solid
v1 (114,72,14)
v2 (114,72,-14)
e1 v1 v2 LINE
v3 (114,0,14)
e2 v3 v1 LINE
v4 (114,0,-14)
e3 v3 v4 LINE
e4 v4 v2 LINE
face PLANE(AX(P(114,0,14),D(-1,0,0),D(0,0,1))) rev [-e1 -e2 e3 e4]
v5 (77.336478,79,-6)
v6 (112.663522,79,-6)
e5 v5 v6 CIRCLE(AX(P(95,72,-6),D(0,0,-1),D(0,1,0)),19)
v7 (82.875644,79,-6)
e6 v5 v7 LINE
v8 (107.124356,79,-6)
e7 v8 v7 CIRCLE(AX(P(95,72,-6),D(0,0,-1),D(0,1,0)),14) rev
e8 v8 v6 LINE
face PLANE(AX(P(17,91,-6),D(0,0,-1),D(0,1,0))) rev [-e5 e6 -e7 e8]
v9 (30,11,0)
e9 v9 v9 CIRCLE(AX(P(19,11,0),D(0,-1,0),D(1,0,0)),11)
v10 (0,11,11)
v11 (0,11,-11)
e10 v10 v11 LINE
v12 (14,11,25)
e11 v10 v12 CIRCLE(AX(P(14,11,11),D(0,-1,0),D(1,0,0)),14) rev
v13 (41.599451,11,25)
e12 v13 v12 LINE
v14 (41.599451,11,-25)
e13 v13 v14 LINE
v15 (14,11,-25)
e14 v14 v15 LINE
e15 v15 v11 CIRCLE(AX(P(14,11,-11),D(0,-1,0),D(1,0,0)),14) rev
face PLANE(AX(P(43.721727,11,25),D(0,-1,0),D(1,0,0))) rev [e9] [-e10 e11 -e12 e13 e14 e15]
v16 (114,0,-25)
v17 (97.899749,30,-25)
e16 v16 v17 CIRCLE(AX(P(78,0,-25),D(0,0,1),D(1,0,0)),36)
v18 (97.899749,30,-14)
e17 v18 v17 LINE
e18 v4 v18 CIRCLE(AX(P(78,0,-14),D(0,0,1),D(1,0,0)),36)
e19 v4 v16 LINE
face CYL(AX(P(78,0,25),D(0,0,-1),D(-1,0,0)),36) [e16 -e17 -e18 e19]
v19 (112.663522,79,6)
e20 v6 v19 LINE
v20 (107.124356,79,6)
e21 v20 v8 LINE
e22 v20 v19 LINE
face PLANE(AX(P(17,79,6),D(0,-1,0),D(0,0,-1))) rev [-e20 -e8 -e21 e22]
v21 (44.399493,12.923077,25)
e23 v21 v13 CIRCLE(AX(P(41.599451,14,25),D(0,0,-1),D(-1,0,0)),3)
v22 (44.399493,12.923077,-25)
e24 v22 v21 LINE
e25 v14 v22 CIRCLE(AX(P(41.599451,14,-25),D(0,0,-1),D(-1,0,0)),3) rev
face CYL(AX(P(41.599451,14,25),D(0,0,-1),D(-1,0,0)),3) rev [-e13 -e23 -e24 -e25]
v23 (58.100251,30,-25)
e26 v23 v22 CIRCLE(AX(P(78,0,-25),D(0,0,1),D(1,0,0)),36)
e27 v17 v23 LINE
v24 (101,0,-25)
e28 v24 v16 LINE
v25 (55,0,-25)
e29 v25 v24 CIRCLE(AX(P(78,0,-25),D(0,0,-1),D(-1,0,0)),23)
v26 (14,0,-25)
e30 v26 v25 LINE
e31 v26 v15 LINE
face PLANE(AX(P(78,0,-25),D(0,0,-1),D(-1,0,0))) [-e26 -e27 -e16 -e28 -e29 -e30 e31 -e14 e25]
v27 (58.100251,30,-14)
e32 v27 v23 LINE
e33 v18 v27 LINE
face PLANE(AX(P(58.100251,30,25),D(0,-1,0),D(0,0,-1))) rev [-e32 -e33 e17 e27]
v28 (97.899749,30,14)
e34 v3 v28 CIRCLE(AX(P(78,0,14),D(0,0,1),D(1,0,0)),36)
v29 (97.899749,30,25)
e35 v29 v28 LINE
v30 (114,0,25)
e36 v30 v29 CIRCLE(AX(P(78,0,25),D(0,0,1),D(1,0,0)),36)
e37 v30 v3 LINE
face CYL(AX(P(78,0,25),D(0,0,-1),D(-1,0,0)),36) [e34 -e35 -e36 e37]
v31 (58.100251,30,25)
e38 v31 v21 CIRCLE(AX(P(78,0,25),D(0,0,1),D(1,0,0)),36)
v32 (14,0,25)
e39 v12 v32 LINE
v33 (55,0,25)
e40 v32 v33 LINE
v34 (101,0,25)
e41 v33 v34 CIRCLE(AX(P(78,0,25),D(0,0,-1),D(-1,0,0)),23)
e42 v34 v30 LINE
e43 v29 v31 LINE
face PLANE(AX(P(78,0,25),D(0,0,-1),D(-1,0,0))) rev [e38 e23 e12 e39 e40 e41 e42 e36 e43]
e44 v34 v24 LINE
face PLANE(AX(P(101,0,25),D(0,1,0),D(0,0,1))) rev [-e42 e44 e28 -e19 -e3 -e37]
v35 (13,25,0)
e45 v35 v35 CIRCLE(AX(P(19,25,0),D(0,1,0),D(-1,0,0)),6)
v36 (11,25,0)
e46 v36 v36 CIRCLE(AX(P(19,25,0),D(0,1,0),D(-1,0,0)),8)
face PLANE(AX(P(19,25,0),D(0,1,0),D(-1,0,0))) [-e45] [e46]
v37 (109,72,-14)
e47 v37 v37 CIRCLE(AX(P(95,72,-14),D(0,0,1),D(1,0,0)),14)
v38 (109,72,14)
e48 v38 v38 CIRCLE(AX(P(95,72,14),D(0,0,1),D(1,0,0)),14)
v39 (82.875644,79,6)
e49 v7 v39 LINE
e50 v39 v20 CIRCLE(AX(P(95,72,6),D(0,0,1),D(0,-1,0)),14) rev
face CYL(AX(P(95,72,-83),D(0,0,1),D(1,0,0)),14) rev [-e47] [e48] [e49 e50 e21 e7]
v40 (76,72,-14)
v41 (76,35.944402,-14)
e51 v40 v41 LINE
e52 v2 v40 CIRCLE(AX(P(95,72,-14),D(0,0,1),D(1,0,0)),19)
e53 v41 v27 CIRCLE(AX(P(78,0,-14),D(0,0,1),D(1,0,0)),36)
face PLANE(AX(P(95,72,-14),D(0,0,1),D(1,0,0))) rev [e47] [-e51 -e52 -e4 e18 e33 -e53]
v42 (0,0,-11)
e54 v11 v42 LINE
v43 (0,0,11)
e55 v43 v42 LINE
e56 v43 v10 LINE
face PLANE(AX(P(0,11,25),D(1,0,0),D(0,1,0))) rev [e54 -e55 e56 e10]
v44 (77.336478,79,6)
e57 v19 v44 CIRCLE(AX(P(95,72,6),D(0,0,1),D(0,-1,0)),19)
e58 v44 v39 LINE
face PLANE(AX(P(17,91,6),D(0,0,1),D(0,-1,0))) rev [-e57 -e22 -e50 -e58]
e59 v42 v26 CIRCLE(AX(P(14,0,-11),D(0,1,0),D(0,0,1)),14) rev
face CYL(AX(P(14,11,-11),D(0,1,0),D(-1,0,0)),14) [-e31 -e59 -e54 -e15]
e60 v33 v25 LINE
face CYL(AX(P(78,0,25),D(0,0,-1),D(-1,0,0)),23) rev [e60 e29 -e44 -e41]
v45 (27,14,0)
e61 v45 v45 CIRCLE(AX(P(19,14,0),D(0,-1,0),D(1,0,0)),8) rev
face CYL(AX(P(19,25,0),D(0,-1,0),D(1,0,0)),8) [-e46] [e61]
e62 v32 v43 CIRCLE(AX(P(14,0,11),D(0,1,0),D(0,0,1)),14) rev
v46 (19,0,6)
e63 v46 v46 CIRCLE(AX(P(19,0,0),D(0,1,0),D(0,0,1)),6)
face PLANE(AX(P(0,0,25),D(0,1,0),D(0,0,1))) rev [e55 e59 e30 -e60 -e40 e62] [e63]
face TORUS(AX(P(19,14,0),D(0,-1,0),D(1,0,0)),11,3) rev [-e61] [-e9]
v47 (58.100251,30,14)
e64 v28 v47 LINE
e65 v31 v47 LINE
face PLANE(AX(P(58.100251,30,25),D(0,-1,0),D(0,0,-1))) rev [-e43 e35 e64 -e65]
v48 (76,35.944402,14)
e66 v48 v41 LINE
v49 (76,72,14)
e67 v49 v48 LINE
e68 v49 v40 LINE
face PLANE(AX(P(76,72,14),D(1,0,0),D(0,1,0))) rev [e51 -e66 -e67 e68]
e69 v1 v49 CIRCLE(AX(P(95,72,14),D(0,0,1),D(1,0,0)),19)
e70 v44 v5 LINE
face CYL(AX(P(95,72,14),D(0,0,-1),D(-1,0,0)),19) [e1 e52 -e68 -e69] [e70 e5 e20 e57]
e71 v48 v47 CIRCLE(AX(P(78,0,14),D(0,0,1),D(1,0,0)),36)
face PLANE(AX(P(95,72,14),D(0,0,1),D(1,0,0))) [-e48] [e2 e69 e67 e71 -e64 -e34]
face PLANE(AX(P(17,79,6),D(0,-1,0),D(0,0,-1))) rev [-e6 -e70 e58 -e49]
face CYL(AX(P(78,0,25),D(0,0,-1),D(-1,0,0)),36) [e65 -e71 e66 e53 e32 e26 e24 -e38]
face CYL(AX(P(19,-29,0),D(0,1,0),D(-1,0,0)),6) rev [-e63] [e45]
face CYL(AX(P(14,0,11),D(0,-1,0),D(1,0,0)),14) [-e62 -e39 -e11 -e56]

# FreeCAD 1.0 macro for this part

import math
import FreeCAD as App
import Part
import Sketcher
Q = App.Units.Quantity


def edges_at(feature, points):
    """Names of the edges that pass closest to the given points."""
    edges = feature.Shape.Edges
    near = lambda p: min(range(len(edges)), key=lambda i: edges[i].distToShape(Part.Vertex(*p))[0])
    return sorted({f"Edge{near(p) + 1}" for p in points})


def add_polygon(sketch, points):
    """Adds a closed chain of lines whose ends are joined by coincident constraints."""
    first, n = sketch.GeometryCount, len(points)
    for a, b in zip(points, points[1:] + points[:1]):
        sketch.addGeometry(Part.LineSegment(App.Vector(*a, 0), App.Vector(*b, 0)), False)
    for i in range(n):
        sketch.addConstraint(Sketcher.Constraint("Coincident", first + i, 2, first + (i + 1) % n, 1))

doc = App.newDocument("Part")
body = doc.addObject("PartDesign::Body", "Body")

sketch1 = body.newObject("Sketcher::SketchObject", "Sketch")
sketch1.AttachmentSupport = (doc.getObject("XY_Plane"), [""])
sketch1.MapMode = "FlatFace"
sketch1.addGeometry([
    Part.LineSegment(App.Vector(0, 0, 0), App.Vector(55, 0, 0)),
    Part.ArcOfCircle(Part.Circle(App.Vector(78, 0, 0), App.Vector(0, 0, 1), 23), math.radians(0), math.radians(180)),
    Part.LineSegment(App.Vector(101, 0, 0), App.Vector(114, 0, 0)),
    Part.ArcOfCircle(Part.Circle(App.Vector(78, 0, 0), App.Vector(0, 0, 1), 36), math.radians(0), math.radians(56)),
    Part.LineSegment(App.Vector(98, 30, 0), App.Vector(58, 30, 0)),
    Part.ArcOfCircle(Part.Circle(App.Vector(78, 0, 0), App.Vector(0, 0, 1), 36), math.radians(124), math.radians(162)),
    Part.LineSegment(App.Vector(44, 11, 0), App.Vector(0, 11, 0)),
    Part.LineSegment(App.Vector(0, 11, 0), App.Vector(0, 0, 0)),
], False)
sketch1.addConstraint([
    Sketcher.Constraint("Coincident", 0, 2, 1, 2),
    Sketcher.Constraint("Coincident", 1, 1, 2, 1),
    Sketcher.Constraint("Coincident", 2, 2, 3, 1),
    Sketcher.Constraint("Coincident", 3, 2, 4, 1),
    Sketcher.Constraint("Coincident", 4, 2, 5, 1),
    Sketcher.Constraint("Coincident", 5, 2, 6, 1),
    Sketcher.Constraint("Coincident", 6, 2, 7, 1),
    Sketcher.Constraint("Coincident", 7, 2, 0, 1),
    Sketcher.Constraint("Horizontal", 0),
    Sketcher.Constraint("Horizontal", 2),
    Sketcher.Constraint("Horizontal", 4),
    Sketcher.Constraint("Horizontal", 6),
    Sketcher.Constraint("Vertical", 7),
    Sketcher.Constraint("Coincident", 7, 2, -1, 1),
    Sketcher.Constraint("Coincident", 3, 3, 1, 3),
    Sketcher.Constraint("Coincident", 5, 3, 1, 3),
    Sketcher.Constraint("Equal", 3, 5),
    Sketcher.Constraint("PointOnObject", 1, 3, -1),
    Sketcher.Constraint("PointOnObject", 1, 1, -1),
    Sketcher.Constraint("Radius", 1, Q("23 mm")),
    Sketcher.Constraint("Radius", 3, Q("36 mm")),
    Sketcher.Constraint("DistanceX", 0, 1, 0, 2, Q("55 mm")),
    Sketcher.Constraint("DistanceY", 7, 2, 7, 1, Q("11 mm")),
    Sketcher.Constraint("DistanceY", -1, 1, 3, 2, Q("30 mm")),
])
pad1 = body.newObject("PartDesign::Pad", "Pad")
pad1.Profile = sketch1
pad1.Length = 50
pad1.Midplane = True

sketch2 = body.newObject("Sketcher::SketchObject", "Sketch001")
sketch2.AttachmentSupport = (doc.getObject("XY_Plane"), [""])
sketch2.MapMode = "FlatFace"
sketch2.addGeometry([
    Part.LineSegment(App.Vector(114, 0, 0), App.Vector(114, 72, 0)),
    Part.ArcOfCircle(Part.Circle(App.Vector(95, 72, 0), App.Vector(0, 0, 1), 19), math.radians(0), math.radians(180)),
    Part.LineSegment(App.Vector(76, 72, 0), App.Vector(76, 36, 0)),
    Part.ArcOfCircle(Part.Circle(App.Vector(78, 0, 0), App.Vector(0, 0, 1), 36), math.radians(93), math.radians(124)),
    Part.LineSegment(App.Vector(58, 30, 0), App.Vector(98, 30, 0)),
    Part.ArcOfCircle(Part.Circle(App.Vector(78, 0, 0), App.Vector(0, 0, 1), 36), math.radians(0), math.radians(56)),
], False)
sketch2.addConstraint([
    Sketcher.Constraint("Tangent", 0, 2, 1, 1),
    Sketcher.Constraint("Tangent", 1, 2, 2, 1),
    Sketcher.Constraint("Coincident", 2, 2, 3, 1),
    Sketcher.Constraint("Coincident", 3, 2, 4, 1),
    Sketcher.Constraint("Coincident", 4, 2, 5, 2),
    Sketcher.Constraint("Tangent", 5, 1, 0, 1),
    Sketcher.Constraint("Vertical", 0),
    Sketcher.Constraint("Vertical", 2),
    Sketcher.Constraint("Horizontal", 4),
    Sketcher.Constraint("Coincident", 5, 3, 3, 3),
    Sketcher.Constraint("Equal", 3, 5),
    Sketcher.Constraint("PointOnObject", 3, 3, -1),
    Sketcher.Constraint("Radius", 1, Q("19 mm")),
    Sketcher.Constraint("Radius", 3, Q("36 mm")),
    Sketcher.Constraint("DistanceY", 0, 1, 0, 2, Q("72 mm")),
    Sketcher.Constraint("DistanceX", -1, 1, 1, 3, Q("95 mm")),
    Sketcher.Constraint("DistanceY", -1, 1, 3, 2, Q("30 mm")),
])
pad2 = body.newObject("PartDesign::Pad", "Pad001")
pad2.Profile = sketch2
pad2.Length = 28
pad2.Midplane = True

sketch3 = body.newObject("Sketcher::SketchObject", "Sketch002")
sketch3.AttachmentSupport = (doc.getObject("XY_Plane"), [""])
sketch3.MapMode = "FlatFace"
sketch3.AttachmentOffset = App.Placement(App.Vector(0, 0, 14), App.Rotation())
sketch3.addGeometry(Part.Circle(App.Vector(95, 72, 0), App.Vector(0, 0, 1), 14), False)
sketch3.addConstraint([
    Sketcher.Constraint("Diameter", 0, Q("28 mm")),
    Sketcher.Constraint("DistanceX", -1, 1, 0, 3, Q("95 mm")),
    Sketcher.Constraint("DistanceY", -1, 1, 0, 3, Q("72 mm")),
])
pocket1 = body.newObject("PartDesign::Pocket", "Pocket")
pocket1.Profile = sketch3
pocket1.Length = 97

sketch4 = body.newObject("Sketcher::SketchObject", "Sketch003")
sketch4.AttachmentSupport = (doc.getObject("YZ_Plane"), [""])
sketch4.MapMode = "FlatFace"
sketch4.AttachmentOffset = App.Placement(App.Vector(0, 0, 114), App.Rotation())
add_polygon(sketch4, [(91, 6), (79, 6), (79, -6), (91, -6)])
sketch4.addConstraint([
    Sketcher.Constraint("Horizontal", 0),
    Sketcher.Constraint("Vertical", 1),
    Sketcher.Constraint("Horizontal", 2),
    Sketcher.Constraint("Vertical", 3),
    Sketcher.Constraint("Equal", 2, 1),
    Sketcher.Constraint("DistanceX", 0, 2, 0, 1, Q("12 mm")),
    Sketcher.Constraint("DistanceX", -1, 1, 0, 2, Q("79 mm")),
    Sketcher.Constraint("DistanceY", -1, 1, 0, 2, Q("6 mm")),
])
pocket2 = body.newObject("PartDesign::Pocket", "Pocket001")
pocket2.Profile = sketch4
pocket2.Length = 97

sketch5 = body.newObject("Sketcher::SketchObject", "Sketch004")
sketch5.AttachmentSupport = (doc.getObject("XZ_Plane"), [""])
sketch5.MapMode = "FlatFace"
sketch5.AttachmentOffset = App.Placement(App.Vector(0, 0, -11), App.Rotation())
sketch5.addGeometry(Part.Circle(App.Vector(19, 0, 0), App.Vector(0, 0, 1), 8), False)
sketch5.addConstraint([
    Sketcher.Constraint("PointOnObject", 0, 3, -1),
    Sketcher.Constraint("Diameter", 0, Q("16 mm")),
    Sketcher.Constraint("DistanceX", -1, 1, 0, 3, Q("19 mm")),
])
pad3 = body.newObject("PartDesign::Pad", "Pad002")
pad3.Profile = sketch5
pad3.Length = 14
pad3.Reversed = True
doc.recompute()

fillet = body.newObject("PartDesign::Fillet", "Fillet")
fillet.Base = (pad3, edges_at(pad3, [(0, 5.5, -25), (0, 5.5, 25)]))
fillet.Radius = 14

sketch6 = body.newObject("Sketcher::SketchObject", "Sketch005")
sketch6.AttachmentSupport = (doc.getObject("XZ_Plane"), [""])
sketch6.MapMode = "FlatFace"
sketch6.AttachmentOffset = App.Placement(App.Vector(0, 0, -25), App.Rotation())
sketch6.addGeometry(Part.Circle(App.Vector(19, 0, 0), App.Vector(0, 0, 1), 6), False)
sketch6.addConstraint([
    Sketcher.Constraint("PointOnObject", 0, 3, -1),
    Sketcher.Constraint("Diameter", 0, Q("12 mm")),
    Sketcher.Constraint("DistanceX", -1, 1, 0, 3, Q("19 mm")),
])
pocket3 = body.newObject("PartDesign::Pocket", "Pocket002")
pocket3.Profile = sketch6
pocket3.Length = 54
pocket3.Reversed = True
doc.recompute()

fillet2 = body.newObject("PartDesign::Fillet", "Fillet001")
fillet2.Base = (pocket3, edges_at(pocket3, [(43.722, 11, 0), (11, 11, 0)]))
fillet2.Radius = 3

doc.recompute()
